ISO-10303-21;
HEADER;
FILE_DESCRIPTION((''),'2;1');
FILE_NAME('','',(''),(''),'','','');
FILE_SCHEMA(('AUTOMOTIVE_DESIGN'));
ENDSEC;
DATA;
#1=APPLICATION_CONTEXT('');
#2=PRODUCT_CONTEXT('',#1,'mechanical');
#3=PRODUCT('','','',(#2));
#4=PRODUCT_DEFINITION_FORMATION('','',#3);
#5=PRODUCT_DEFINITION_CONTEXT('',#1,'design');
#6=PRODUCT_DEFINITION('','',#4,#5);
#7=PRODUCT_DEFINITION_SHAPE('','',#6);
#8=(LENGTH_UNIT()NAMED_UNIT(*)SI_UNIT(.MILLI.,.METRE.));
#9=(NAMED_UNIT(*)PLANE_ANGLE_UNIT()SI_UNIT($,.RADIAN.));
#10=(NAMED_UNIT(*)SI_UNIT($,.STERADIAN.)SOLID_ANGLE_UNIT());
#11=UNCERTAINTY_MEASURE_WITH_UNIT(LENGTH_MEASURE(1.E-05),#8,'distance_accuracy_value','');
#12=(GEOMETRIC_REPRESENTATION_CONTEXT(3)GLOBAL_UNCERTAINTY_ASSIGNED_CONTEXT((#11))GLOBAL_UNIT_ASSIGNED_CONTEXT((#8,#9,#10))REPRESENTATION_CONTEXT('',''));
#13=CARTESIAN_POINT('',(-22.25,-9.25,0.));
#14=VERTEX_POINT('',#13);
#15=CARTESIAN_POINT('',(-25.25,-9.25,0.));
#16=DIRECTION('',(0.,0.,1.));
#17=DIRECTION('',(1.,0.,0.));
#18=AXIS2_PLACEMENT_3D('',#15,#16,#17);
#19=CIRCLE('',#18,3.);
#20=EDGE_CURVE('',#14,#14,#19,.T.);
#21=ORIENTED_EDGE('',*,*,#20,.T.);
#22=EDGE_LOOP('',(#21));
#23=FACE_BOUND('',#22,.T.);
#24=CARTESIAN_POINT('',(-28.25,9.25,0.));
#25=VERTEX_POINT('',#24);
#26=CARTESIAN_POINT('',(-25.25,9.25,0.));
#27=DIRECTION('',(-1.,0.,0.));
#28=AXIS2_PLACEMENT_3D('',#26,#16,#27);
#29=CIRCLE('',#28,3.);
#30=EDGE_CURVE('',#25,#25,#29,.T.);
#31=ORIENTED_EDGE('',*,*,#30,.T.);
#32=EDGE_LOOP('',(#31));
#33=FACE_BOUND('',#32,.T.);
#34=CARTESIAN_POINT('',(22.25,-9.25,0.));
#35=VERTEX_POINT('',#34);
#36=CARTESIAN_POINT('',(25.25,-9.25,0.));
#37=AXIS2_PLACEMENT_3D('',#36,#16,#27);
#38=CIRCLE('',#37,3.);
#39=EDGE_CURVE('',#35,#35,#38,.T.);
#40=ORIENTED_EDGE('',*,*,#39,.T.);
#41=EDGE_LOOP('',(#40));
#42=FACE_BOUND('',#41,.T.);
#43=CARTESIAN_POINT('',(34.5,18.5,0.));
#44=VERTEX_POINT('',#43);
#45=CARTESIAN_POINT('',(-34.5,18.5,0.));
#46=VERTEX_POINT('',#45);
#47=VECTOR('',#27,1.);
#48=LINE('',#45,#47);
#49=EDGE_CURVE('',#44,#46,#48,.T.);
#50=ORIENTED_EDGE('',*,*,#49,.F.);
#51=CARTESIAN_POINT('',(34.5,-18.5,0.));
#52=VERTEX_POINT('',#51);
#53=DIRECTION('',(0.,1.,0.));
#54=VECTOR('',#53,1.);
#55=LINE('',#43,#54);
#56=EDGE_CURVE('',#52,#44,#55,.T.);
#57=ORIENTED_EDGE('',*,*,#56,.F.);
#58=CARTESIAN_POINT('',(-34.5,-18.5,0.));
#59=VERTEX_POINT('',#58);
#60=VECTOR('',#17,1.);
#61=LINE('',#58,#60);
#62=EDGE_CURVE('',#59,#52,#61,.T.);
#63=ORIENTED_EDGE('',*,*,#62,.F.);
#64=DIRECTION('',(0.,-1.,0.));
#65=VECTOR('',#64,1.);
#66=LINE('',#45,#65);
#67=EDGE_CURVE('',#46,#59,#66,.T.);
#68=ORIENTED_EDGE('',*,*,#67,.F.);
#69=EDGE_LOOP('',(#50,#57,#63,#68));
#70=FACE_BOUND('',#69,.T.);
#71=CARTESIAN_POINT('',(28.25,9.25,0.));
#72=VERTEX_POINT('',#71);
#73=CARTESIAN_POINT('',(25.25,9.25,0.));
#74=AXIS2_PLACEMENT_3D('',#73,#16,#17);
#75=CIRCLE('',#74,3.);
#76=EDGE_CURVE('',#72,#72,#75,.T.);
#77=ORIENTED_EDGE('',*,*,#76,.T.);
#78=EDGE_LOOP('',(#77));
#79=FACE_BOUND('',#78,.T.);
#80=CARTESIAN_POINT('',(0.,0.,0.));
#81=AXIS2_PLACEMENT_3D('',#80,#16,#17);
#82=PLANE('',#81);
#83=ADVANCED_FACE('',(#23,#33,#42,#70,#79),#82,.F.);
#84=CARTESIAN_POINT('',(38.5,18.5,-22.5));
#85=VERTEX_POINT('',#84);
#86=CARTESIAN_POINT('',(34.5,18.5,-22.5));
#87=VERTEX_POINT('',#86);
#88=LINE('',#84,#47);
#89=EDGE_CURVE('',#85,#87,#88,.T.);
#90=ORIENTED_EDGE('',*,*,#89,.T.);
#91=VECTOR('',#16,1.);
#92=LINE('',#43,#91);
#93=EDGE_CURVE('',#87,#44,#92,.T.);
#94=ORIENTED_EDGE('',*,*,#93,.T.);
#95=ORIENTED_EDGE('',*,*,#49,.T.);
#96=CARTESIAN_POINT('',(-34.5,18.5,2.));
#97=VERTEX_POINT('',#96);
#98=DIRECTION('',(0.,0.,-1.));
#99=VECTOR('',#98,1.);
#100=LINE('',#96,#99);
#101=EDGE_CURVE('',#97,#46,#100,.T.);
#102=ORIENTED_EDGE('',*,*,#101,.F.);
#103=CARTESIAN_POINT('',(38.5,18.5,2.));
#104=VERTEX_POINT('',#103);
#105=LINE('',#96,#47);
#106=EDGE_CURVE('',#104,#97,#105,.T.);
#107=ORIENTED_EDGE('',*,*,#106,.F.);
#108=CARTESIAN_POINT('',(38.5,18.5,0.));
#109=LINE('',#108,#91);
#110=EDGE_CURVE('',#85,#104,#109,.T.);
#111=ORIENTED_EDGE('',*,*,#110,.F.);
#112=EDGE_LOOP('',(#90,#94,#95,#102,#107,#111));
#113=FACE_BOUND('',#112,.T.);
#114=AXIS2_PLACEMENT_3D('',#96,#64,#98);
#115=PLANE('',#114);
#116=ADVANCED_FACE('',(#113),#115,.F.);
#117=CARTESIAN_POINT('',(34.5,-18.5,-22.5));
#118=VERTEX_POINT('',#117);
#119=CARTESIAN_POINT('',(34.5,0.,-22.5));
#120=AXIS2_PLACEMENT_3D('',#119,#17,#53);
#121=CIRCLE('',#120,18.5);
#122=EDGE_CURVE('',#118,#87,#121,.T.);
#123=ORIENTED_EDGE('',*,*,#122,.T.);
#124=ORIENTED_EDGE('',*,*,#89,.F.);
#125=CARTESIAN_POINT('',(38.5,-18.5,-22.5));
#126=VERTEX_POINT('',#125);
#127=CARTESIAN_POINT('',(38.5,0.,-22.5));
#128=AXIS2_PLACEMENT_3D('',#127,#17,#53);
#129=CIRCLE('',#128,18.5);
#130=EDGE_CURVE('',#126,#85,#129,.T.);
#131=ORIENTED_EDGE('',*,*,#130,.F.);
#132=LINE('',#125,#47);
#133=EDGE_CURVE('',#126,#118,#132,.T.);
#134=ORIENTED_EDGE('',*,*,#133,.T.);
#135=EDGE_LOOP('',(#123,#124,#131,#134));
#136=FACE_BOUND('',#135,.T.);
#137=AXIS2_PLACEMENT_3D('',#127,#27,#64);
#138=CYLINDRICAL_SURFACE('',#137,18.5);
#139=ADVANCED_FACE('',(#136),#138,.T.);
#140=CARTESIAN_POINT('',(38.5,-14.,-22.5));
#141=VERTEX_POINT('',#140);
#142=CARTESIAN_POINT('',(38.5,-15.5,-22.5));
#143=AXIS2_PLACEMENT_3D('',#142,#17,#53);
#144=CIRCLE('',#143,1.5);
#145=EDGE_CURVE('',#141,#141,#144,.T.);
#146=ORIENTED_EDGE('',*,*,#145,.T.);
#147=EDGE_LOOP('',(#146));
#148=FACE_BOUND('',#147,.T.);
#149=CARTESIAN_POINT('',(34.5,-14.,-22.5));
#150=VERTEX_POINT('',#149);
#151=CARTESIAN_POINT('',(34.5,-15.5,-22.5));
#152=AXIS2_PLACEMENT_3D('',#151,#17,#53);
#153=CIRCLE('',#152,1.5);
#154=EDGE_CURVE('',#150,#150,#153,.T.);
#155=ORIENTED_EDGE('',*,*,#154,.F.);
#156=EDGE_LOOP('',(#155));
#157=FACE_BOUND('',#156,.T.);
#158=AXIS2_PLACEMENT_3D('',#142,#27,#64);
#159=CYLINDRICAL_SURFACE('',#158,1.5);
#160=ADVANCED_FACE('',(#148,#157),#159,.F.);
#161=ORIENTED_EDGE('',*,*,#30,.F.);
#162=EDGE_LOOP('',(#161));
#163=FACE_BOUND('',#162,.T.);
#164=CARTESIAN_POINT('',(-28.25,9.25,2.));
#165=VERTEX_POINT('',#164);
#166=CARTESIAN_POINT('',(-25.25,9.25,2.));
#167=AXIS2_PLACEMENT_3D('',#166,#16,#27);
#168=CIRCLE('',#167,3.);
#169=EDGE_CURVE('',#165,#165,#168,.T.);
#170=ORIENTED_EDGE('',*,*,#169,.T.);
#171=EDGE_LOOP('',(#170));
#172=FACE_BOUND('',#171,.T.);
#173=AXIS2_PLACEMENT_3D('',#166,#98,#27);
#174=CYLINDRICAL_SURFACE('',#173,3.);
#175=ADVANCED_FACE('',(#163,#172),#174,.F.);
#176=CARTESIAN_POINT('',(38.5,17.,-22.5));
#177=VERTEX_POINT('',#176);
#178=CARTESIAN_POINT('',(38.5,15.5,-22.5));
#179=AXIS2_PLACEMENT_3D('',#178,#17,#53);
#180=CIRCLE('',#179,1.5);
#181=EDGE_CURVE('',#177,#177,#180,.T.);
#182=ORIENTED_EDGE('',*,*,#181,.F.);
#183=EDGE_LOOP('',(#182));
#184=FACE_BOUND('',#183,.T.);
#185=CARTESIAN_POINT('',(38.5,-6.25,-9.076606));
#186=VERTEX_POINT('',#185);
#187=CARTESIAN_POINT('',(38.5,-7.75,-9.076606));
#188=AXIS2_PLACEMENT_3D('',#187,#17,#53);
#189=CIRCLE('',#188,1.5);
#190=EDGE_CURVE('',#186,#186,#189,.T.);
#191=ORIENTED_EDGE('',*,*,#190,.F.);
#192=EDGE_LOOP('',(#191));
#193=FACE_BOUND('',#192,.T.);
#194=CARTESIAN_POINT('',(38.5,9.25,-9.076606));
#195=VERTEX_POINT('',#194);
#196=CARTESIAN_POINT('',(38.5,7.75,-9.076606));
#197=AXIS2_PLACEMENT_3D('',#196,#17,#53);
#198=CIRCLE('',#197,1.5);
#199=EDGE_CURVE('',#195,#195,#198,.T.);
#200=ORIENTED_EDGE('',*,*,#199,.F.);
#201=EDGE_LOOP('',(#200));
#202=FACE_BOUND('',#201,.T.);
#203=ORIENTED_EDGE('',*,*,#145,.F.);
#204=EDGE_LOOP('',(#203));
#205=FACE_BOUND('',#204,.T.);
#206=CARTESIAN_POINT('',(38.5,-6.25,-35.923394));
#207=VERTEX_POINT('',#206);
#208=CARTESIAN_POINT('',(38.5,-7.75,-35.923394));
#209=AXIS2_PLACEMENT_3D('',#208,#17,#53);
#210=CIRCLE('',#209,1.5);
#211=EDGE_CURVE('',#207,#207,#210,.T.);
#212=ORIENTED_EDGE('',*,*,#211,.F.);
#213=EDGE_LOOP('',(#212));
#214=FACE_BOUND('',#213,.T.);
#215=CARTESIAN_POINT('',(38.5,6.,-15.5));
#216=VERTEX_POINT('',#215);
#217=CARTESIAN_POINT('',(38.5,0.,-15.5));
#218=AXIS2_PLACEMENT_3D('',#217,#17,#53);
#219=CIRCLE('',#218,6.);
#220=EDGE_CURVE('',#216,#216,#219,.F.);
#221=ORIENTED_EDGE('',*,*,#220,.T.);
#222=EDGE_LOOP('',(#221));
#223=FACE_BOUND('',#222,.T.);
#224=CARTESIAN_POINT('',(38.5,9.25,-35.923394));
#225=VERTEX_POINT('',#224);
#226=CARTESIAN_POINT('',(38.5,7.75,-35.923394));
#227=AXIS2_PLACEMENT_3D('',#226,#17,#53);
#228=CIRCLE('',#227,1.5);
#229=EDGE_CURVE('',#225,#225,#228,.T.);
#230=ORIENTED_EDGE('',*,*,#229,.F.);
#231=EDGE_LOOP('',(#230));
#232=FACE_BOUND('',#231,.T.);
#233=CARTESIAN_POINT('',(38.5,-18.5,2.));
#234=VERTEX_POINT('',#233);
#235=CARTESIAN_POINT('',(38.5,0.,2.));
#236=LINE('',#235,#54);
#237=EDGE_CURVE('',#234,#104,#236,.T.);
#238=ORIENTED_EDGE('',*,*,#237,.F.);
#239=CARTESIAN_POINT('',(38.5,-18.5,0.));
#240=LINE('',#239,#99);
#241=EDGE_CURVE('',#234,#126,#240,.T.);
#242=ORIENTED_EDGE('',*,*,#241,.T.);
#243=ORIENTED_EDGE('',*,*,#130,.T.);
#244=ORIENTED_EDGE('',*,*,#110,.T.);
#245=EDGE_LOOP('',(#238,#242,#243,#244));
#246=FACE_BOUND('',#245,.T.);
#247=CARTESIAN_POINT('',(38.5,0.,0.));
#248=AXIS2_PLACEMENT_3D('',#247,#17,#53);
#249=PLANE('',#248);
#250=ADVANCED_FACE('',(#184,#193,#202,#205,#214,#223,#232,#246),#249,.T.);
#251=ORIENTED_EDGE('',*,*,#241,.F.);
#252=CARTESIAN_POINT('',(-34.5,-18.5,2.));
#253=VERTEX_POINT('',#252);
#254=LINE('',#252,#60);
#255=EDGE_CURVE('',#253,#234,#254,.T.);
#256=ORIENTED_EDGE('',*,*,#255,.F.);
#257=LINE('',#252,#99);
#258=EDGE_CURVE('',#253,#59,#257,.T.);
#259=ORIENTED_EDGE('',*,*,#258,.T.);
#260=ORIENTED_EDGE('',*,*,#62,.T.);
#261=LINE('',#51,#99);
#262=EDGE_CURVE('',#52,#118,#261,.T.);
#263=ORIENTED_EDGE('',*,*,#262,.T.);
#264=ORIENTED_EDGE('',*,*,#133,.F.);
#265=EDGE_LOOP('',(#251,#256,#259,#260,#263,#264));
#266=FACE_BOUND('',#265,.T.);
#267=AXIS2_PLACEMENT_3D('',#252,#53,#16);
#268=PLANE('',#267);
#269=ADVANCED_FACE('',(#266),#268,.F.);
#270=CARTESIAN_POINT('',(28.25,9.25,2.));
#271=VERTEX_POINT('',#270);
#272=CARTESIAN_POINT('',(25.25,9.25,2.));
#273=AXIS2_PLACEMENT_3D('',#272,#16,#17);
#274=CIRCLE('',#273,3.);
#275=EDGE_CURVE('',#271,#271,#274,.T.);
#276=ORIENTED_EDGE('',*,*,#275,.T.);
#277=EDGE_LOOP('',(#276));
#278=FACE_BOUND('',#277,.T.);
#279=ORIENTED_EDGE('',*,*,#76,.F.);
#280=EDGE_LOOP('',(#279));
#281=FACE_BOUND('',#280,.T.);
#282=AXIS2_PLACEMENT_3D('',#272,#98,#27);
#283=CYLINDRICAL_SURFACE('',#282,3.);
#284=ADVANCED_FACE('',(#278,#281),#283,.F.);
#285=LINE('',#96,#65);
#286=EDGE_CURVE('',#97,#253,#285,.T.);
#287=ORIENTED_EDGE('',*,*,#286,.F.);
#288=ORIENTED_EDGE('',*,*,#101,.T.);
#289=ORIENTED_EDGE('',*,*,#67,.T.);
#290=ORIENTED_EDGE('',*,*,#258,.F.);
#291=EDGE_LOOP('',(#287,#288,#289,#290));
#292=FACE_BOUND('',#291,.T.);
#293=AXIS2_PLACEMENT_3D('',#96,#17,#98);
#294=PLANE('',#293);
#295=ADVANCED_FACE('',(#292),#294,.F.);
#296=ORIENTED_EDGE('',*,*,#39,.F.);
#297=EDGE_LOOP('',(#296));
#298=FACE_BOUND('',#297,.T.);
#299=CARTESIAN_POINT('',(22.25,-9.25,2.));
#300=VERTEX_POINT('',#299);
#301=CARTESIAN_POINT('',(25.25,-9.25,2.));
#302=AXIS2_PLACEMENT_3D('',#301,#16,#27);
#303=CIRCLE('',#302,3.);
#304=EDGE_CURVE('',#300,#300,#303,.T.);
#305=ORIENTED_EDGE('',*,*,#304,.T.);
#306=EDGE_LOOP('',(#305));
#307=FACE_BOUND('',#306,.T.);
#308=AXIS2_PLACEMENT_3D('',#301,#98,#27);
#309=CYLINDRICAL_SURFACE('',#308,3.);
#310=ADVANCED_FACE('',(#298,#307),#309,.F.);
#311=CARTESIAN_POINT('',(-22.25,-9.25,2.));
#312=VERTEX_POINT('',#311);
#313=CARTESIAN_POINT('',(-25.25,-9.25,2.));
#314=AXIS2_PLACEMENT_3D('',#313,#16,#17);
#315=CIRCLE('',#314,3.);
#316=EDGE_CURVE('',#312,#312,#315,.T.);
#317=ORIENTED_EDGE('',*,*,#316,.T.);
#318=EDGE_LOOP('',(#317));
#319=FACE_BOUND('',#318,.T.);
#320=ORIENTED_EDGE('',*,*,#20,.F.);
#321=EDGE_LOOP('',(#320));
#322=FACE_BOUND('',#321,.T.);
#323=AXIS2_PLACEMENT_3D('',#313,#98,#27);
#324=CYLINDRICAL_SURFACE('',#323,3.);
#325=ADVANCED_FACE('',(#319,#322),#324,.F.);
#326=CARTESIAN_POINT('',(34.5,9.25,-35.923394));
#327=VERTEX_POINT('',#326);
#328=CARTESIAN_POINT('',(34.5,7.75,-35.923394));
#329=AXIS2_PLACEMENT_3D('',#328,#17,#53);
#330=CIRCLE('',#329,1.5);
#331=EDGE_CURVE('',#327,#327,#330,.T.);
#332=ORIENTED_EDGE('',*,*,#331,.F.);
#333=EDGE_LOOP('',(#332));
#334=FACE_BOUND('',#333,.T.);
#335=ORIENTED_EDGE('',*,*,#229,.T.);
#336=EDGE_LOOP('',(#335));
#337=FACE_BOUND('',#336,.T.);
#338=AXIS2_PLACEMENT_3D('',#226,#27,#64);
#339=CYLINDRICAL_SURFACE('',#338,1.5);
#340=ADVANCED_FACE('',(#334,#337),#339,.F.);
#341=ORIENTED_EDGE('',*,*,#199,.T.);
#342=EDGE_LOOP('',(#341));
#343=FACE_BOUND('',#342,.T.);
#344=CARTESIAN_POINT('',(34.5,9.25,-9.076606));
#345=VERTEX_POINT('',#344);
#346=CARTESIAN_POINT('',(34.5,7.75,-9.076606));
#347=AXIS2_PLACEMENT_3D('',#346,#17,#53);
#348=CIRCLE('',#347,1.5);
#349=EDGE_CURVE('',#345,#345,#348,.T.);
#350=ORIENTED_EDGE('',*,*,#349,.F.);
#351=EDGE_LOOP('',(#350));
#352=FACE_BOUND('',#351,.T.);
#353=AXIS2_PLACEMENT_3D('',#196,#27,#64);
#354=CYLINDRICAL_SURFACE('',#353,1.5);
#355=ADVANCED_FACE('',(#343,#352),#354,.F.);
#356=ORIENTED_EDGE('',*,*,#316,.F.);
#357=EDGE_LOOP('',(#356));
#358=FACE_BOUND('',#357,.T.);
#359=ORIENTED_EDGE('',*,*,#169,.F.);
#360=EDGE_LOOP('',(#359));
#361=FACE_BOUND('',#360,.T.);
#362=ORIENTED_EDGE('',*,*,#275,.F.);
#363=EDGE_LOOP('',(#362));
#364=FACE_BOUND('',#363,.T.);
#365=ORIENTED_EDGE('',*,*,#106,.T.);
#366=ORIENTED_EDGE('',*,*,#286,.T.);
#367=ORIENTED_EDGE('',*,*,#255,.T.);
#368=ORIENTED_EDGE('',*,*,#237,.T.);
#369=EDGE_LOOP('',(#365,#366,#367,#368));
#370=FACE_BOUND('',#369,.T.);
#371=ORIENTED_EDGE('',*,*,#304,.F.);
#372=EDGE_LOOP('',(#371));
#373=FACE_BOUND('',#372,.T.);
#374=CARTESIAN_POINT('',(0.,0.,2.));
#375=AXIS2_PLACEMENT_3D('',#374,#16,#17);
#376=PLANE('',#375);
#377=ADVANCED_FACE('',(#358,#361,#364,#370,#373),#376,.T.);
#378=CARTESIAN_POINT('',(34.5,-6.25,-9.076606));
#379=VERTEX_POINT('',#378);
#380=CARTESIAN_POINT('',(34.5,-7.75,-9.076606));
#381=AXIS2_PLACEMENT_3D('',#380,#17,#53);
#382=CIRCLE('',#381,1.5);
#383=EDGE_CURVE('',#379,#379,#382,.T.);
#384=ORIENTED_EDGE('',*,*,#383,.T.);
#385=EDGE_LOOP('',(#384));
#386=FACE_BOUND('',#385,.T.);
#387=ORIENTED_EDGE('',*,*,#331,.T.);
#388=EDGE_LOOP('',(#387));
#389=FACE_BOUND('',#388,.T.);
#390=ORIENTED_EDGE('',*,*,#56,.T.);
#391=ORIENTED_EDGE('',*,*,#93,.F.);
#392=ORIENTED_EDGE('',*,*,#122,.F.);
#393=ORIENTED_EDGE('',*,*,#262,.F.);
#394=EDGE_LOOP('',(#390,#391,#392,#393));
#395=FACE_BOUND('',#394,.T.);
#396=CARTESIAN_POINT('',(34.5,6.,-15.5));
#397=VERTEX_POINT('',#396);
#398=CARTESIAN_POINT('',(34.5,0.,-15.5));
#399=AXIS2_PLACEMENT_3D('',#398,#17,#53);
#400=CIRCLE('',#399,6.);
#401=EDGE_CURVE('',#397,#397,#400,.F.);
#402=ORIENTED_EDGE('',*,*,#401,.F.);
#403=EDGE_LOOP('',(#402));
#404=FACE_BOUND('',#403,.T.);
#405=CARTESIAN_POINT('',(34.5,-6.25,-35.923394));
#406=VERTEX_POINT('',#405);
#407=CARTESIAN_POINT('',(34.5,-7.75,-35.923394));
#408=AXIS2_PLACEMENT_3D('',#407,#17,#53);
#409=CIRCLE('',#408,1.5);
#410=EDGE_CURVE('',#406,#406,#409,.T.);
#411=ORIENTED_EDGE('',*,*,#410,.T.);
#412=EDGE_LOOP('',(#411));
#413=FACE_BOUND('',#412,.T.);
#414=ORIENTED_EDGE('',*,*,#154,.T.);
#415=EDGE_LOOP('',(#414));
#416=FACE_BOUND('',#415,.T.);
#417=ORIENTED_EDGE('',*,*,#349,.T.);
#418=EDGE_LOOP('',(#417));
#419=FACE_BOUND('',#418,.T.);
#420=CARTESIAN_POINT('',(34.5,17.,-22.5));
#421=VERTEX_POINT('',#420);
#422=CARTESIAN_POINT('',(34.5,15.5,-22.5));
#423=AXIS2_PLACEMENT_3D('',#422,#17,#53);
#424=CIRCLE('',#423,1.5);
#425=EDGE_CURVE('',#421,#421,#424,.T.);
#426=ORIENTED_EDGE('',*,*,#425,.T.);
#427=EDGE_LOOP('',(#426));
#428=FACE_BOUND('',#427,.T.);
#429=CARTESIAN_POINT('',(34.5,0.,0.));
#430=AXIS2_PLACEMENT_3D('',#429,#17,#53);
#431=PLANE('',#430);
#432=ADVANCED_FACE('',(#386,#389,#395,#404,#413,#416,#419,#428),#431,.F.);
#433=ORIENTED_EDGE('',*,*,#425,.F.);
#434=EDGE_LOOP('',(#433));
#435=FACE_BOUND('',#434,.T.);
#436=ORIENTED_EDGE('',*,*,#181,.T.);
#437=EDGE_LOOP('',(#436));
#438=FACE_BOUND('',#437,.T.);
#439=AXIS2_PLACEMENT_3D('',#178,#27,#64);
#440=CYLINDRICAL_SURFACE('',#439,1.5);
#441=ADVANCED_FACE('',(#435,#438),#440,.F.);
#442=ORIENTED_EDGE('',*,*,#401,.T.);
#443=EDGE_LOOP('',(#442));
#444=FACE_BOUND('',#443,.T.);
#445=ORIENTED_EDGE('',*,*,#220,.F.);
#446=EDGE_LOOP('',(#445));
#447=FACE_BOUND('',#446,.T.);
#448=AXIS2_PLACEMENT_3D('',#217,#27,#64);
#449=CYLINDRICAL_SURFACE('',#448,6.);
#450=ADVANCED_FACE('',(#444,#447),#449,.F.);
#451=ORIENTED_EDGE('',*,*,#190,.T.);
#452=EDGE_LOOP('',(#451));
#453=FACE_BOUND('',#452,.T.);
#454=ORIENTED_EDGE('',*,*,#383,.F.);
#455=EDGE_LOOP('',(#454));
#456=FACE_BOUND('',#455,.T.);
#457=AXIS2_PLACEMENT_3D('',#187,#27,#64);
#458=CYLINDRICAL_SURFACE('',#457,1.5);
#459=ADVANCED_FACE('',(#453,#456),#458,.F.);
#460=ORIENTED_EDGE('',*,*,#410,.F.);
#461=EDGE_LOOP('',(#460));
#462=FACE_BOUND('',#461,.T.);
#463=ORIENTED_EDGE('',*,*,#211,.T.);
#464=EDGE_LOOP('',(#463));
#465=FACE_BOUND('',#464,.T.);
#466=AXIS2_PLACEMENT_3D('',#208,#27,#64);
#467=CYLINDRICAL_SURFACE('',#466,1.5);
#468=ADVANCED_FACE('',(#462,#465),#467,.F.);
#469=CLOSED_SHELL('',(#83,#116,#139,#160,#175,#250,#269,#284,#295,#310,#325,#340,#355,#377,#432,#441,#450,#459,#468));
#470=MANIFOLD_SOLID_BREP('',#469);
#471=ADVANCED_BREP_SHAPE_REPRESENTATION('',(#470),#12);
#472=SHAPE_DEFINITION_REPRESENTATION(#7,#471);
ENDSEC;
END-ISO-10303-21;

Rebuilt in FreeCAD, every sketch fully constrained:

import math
import FreeCAD as App
import Part
import Sketcher
from FreeCAD import Vector

doc = App.newDocument("Part")
body = doc.addObject("PartDesign::Body", "Body")

sketch1 = body.newObject("Sketcher::SketchObject", "Sketch")
sketch1.AttachmentSupport = (doc.getObject("XY_Plane"), [""])
sketch1.MapMode = "FlatFace"
sketch1.addGeometry([
    Part.LineSegment(Vector(-34.5, 18.5, 0), Vector(-34.5, -18.5, 0)),
    Part.LineSegment(Vector(-34.5, -18.5, 0), Vector(34.5, -18.5, 0)),
    Part.LineSegment(Vector(34.5, -18.5, 0), Vector(34.5, 18.5, 0)),
    Part.LineSegment(Vector(34.5, 18.5, 0), Vector(-34.5, 18.5, 0)),
    Part.Circle(Vector(-25.2, -9.2, 0), Vector(0, 0, 1), 3),
    Part.Circle(Vector(25.2, -9.2, 0), Vector(0, 0, 1), 3),
    Part.Circle(Vector(-25.2, 9.2, 0), Vector(0, 0, 1), 3),
    Part.Circle(Vector(25.2, 9.2, 0), Vector(0, 0, 1), 3),
], False)
sketch1.addConstraint([
    Sketcher.Constraint("Coincident", 0, 2, 1, 1),
    Sketcher.Constraint("Coincident", 1, 2, 2, 1),
    Sketcher.Constraint("Coincident", 2, 2, 3, 1),
    Sketcher.Constraint("Coincident", 3, 2, 0, 1),
    Sketcher.Constraint("Vertical", 0),
    Sketcher.Constraint("Horizontal", 1),
    Sketcher.Constraint("Vertical", 2),
    Sketcher.Constraint("Horizontal", 3),
    Sketcher.Constraint("Equal", 4, 5),
    Sketcher.Constraint("Equal", 5, 6),
    Sketcher.Constraint("Equal", 6, 7),
    Sketcher.Constraint("Symmetric", 5, 3, 6, 3, -1, 1),
    Sketcher.Constraint("Symmetric", 4, 3, 7, 3, -1, 1),
    Sketcher.Constraint("Symmetric", 0, 2, 2, 2, -1, 1),
    Sketcher.Constraint("Symmetric", 4, 3, 5, 3, -2),
    Sketcher.Constraint("Diameter", 4, 6.0),
    Sketcher.Constraint("DistanceX", 1, 1, 1, 2, 69.0),
    Sketcher.Constraint("DistanceY", 0, 2, 0, 1, 37.0),
    Sketcher.Constraint("DistanceX", 4, 3, 5, 3, 50.5),
    Sketcher.Constraint("DistanceY", 4, 3, 6, 3, 18.5),
])
pad1 = body.newObject("PartDesign::Pad", "Pad")
pad1.Profile = sketch1
pad1.Length = 2

sketch2 = body.newObject("Sketcher::SketchObject", "Sketch001")
sketch2.AttachmentSupport = (doc.getObject("YZ_Plane"), [""])
sketch2.MapMode = "FlatFace"
sketch2.AttachmentOffset = App.Placement(Vector(0, 0, 34.5), App.Rotation())
sketch2.addGeometry([
    Part.LineSegment(Vector(18.5, -22.5, 0), Vector(18.5, 2, 0)),
    Part.LineSegment(Vector(18.5, 2, 0), Vector(-18.5, 2, 0)),
    Part.LineSegment(Vector(-18.5, 2, 0), Vector(-18.5, -22.5, 0)),
    Part.ArcOfCircle(Part.Circle(Vector(0, -22.5, 0), Vector(0, 0, 1), 18.5), math.radians(180), math.radians(270)),
    Part.ArcOfCircle(Part.Circle(Vector(0, -22.5, 0), Vector(0, 0, 1), 18.5), math.radians(-90), math.radians(0)),
    Part.Circle(Vector(15.5, -22.5, 0), Vector(0, 0, 1), 1.5),
    Part.Circle(Vector(-7.8, -9.1, 0), Vector(0, 0, 1), 1.5),
    Part.Circle(Vector(-15.5, -22.5, 0), Vector(0, 0, 1), 1.5),
    Part.Circle(Vector(-7.8, -35.9, 0), Vector(0, 0, 1), 1.5),
    Part.Circle(Vector(7.8, -9.1, 0), Vector(0, 0, 1), 1.5),
    Part.Circle(Vector(0, -15.5, 0), Vector(0, 0, 1), 6),
    Part.Circle(Vector(7.8, -35.9, 0), Vector(0, 0, 1), 1.5),
], False)
sketch2.addConstraint([
    Sketcher.Constraint("Coincident", 0, 2, 1, 1),
    Sketcher.Constraint("Coincident", 1, 2, 2, 1),
    Sketcher.Constraint("Tangent", 2, 2, 3, 1),
    Sketcher.Constraint("Tangent", 3, 2, 4, 1),
    Sketcher.Constraint("Tangent", 4, 2, 0, 1),
    Sketcher.Constraint("Vertical", 0),
    Sketcher.Constraint("Horizontal", 1),
    Sketcher.Constraint("Vertical", 2),
    Sketcher.Constraint("Equal", 3, 4),
    Sketcher.Constraint("Equal", 5, 6),
    Sketcher.Constraint("Equal", 6, 7),
    Sketcher.Constraint("Equal", 7, 8),
    Sketcher.Constraint("Equal", 8, 9),
    Sketcher.Constraint("Equal", 9, 11),
    Sketcher.Constraint("Symmetric", 5, 3, 7, 3, -2),
    Sketcher.Constraint("Symmetric", 6, 3, 9, 3, -2),
    Sketcher.Constraint("Symmetric", 8, 3, 11, 3, -2),
    Sketcher.Constraint("PointOnObject", 3, 3, -2),
    Sketcher.Constraint("PointOnObject", 10, 3, -2),
    Sketcher.Constraint("PointOnObject", 3, 2, -2),
    Sketcher.Constraint("Horizontal", 4, 3, 5, 3),
    Sketcher.Constraint("Vertical", 6, 3, 8, 3),
    Sketcher.Constraint("Diameter", 5, 3.0),
    Sketcher.Constraint("Diameter", 10, 12.0),
    Sketcher.Constraint("Radius", 3, 18.5),
    Sketcher.Constraint("DistanceY", 0, 1, 0, 2, 24.5),
    Sketcher.Constraint("DistanceY", -1, 1, 0, 2, 2.0),
    Sketcher.Constraint("DistanceX", 7, 3, 5, 3, 31.0),
    Sketcher.Constraint("DistanceY", 3, 3, 10, 3, 7.0),
    Sketcher.Constraint("DistanceX", 6, 3, 9, 3, 15.5),
    Sketcher.Constraint("DistanceY", 6, 3, -1, 1, 9.076606),
    Sketcher.Constraint("DistanceY", 8, 3, -1, 1, 35.923394),
])
pad2 = body.newObject("PartDesign::Pad", "Pad001")
pad2.Profile = sketch2
pad2.Length = 4

doc.recompute()
